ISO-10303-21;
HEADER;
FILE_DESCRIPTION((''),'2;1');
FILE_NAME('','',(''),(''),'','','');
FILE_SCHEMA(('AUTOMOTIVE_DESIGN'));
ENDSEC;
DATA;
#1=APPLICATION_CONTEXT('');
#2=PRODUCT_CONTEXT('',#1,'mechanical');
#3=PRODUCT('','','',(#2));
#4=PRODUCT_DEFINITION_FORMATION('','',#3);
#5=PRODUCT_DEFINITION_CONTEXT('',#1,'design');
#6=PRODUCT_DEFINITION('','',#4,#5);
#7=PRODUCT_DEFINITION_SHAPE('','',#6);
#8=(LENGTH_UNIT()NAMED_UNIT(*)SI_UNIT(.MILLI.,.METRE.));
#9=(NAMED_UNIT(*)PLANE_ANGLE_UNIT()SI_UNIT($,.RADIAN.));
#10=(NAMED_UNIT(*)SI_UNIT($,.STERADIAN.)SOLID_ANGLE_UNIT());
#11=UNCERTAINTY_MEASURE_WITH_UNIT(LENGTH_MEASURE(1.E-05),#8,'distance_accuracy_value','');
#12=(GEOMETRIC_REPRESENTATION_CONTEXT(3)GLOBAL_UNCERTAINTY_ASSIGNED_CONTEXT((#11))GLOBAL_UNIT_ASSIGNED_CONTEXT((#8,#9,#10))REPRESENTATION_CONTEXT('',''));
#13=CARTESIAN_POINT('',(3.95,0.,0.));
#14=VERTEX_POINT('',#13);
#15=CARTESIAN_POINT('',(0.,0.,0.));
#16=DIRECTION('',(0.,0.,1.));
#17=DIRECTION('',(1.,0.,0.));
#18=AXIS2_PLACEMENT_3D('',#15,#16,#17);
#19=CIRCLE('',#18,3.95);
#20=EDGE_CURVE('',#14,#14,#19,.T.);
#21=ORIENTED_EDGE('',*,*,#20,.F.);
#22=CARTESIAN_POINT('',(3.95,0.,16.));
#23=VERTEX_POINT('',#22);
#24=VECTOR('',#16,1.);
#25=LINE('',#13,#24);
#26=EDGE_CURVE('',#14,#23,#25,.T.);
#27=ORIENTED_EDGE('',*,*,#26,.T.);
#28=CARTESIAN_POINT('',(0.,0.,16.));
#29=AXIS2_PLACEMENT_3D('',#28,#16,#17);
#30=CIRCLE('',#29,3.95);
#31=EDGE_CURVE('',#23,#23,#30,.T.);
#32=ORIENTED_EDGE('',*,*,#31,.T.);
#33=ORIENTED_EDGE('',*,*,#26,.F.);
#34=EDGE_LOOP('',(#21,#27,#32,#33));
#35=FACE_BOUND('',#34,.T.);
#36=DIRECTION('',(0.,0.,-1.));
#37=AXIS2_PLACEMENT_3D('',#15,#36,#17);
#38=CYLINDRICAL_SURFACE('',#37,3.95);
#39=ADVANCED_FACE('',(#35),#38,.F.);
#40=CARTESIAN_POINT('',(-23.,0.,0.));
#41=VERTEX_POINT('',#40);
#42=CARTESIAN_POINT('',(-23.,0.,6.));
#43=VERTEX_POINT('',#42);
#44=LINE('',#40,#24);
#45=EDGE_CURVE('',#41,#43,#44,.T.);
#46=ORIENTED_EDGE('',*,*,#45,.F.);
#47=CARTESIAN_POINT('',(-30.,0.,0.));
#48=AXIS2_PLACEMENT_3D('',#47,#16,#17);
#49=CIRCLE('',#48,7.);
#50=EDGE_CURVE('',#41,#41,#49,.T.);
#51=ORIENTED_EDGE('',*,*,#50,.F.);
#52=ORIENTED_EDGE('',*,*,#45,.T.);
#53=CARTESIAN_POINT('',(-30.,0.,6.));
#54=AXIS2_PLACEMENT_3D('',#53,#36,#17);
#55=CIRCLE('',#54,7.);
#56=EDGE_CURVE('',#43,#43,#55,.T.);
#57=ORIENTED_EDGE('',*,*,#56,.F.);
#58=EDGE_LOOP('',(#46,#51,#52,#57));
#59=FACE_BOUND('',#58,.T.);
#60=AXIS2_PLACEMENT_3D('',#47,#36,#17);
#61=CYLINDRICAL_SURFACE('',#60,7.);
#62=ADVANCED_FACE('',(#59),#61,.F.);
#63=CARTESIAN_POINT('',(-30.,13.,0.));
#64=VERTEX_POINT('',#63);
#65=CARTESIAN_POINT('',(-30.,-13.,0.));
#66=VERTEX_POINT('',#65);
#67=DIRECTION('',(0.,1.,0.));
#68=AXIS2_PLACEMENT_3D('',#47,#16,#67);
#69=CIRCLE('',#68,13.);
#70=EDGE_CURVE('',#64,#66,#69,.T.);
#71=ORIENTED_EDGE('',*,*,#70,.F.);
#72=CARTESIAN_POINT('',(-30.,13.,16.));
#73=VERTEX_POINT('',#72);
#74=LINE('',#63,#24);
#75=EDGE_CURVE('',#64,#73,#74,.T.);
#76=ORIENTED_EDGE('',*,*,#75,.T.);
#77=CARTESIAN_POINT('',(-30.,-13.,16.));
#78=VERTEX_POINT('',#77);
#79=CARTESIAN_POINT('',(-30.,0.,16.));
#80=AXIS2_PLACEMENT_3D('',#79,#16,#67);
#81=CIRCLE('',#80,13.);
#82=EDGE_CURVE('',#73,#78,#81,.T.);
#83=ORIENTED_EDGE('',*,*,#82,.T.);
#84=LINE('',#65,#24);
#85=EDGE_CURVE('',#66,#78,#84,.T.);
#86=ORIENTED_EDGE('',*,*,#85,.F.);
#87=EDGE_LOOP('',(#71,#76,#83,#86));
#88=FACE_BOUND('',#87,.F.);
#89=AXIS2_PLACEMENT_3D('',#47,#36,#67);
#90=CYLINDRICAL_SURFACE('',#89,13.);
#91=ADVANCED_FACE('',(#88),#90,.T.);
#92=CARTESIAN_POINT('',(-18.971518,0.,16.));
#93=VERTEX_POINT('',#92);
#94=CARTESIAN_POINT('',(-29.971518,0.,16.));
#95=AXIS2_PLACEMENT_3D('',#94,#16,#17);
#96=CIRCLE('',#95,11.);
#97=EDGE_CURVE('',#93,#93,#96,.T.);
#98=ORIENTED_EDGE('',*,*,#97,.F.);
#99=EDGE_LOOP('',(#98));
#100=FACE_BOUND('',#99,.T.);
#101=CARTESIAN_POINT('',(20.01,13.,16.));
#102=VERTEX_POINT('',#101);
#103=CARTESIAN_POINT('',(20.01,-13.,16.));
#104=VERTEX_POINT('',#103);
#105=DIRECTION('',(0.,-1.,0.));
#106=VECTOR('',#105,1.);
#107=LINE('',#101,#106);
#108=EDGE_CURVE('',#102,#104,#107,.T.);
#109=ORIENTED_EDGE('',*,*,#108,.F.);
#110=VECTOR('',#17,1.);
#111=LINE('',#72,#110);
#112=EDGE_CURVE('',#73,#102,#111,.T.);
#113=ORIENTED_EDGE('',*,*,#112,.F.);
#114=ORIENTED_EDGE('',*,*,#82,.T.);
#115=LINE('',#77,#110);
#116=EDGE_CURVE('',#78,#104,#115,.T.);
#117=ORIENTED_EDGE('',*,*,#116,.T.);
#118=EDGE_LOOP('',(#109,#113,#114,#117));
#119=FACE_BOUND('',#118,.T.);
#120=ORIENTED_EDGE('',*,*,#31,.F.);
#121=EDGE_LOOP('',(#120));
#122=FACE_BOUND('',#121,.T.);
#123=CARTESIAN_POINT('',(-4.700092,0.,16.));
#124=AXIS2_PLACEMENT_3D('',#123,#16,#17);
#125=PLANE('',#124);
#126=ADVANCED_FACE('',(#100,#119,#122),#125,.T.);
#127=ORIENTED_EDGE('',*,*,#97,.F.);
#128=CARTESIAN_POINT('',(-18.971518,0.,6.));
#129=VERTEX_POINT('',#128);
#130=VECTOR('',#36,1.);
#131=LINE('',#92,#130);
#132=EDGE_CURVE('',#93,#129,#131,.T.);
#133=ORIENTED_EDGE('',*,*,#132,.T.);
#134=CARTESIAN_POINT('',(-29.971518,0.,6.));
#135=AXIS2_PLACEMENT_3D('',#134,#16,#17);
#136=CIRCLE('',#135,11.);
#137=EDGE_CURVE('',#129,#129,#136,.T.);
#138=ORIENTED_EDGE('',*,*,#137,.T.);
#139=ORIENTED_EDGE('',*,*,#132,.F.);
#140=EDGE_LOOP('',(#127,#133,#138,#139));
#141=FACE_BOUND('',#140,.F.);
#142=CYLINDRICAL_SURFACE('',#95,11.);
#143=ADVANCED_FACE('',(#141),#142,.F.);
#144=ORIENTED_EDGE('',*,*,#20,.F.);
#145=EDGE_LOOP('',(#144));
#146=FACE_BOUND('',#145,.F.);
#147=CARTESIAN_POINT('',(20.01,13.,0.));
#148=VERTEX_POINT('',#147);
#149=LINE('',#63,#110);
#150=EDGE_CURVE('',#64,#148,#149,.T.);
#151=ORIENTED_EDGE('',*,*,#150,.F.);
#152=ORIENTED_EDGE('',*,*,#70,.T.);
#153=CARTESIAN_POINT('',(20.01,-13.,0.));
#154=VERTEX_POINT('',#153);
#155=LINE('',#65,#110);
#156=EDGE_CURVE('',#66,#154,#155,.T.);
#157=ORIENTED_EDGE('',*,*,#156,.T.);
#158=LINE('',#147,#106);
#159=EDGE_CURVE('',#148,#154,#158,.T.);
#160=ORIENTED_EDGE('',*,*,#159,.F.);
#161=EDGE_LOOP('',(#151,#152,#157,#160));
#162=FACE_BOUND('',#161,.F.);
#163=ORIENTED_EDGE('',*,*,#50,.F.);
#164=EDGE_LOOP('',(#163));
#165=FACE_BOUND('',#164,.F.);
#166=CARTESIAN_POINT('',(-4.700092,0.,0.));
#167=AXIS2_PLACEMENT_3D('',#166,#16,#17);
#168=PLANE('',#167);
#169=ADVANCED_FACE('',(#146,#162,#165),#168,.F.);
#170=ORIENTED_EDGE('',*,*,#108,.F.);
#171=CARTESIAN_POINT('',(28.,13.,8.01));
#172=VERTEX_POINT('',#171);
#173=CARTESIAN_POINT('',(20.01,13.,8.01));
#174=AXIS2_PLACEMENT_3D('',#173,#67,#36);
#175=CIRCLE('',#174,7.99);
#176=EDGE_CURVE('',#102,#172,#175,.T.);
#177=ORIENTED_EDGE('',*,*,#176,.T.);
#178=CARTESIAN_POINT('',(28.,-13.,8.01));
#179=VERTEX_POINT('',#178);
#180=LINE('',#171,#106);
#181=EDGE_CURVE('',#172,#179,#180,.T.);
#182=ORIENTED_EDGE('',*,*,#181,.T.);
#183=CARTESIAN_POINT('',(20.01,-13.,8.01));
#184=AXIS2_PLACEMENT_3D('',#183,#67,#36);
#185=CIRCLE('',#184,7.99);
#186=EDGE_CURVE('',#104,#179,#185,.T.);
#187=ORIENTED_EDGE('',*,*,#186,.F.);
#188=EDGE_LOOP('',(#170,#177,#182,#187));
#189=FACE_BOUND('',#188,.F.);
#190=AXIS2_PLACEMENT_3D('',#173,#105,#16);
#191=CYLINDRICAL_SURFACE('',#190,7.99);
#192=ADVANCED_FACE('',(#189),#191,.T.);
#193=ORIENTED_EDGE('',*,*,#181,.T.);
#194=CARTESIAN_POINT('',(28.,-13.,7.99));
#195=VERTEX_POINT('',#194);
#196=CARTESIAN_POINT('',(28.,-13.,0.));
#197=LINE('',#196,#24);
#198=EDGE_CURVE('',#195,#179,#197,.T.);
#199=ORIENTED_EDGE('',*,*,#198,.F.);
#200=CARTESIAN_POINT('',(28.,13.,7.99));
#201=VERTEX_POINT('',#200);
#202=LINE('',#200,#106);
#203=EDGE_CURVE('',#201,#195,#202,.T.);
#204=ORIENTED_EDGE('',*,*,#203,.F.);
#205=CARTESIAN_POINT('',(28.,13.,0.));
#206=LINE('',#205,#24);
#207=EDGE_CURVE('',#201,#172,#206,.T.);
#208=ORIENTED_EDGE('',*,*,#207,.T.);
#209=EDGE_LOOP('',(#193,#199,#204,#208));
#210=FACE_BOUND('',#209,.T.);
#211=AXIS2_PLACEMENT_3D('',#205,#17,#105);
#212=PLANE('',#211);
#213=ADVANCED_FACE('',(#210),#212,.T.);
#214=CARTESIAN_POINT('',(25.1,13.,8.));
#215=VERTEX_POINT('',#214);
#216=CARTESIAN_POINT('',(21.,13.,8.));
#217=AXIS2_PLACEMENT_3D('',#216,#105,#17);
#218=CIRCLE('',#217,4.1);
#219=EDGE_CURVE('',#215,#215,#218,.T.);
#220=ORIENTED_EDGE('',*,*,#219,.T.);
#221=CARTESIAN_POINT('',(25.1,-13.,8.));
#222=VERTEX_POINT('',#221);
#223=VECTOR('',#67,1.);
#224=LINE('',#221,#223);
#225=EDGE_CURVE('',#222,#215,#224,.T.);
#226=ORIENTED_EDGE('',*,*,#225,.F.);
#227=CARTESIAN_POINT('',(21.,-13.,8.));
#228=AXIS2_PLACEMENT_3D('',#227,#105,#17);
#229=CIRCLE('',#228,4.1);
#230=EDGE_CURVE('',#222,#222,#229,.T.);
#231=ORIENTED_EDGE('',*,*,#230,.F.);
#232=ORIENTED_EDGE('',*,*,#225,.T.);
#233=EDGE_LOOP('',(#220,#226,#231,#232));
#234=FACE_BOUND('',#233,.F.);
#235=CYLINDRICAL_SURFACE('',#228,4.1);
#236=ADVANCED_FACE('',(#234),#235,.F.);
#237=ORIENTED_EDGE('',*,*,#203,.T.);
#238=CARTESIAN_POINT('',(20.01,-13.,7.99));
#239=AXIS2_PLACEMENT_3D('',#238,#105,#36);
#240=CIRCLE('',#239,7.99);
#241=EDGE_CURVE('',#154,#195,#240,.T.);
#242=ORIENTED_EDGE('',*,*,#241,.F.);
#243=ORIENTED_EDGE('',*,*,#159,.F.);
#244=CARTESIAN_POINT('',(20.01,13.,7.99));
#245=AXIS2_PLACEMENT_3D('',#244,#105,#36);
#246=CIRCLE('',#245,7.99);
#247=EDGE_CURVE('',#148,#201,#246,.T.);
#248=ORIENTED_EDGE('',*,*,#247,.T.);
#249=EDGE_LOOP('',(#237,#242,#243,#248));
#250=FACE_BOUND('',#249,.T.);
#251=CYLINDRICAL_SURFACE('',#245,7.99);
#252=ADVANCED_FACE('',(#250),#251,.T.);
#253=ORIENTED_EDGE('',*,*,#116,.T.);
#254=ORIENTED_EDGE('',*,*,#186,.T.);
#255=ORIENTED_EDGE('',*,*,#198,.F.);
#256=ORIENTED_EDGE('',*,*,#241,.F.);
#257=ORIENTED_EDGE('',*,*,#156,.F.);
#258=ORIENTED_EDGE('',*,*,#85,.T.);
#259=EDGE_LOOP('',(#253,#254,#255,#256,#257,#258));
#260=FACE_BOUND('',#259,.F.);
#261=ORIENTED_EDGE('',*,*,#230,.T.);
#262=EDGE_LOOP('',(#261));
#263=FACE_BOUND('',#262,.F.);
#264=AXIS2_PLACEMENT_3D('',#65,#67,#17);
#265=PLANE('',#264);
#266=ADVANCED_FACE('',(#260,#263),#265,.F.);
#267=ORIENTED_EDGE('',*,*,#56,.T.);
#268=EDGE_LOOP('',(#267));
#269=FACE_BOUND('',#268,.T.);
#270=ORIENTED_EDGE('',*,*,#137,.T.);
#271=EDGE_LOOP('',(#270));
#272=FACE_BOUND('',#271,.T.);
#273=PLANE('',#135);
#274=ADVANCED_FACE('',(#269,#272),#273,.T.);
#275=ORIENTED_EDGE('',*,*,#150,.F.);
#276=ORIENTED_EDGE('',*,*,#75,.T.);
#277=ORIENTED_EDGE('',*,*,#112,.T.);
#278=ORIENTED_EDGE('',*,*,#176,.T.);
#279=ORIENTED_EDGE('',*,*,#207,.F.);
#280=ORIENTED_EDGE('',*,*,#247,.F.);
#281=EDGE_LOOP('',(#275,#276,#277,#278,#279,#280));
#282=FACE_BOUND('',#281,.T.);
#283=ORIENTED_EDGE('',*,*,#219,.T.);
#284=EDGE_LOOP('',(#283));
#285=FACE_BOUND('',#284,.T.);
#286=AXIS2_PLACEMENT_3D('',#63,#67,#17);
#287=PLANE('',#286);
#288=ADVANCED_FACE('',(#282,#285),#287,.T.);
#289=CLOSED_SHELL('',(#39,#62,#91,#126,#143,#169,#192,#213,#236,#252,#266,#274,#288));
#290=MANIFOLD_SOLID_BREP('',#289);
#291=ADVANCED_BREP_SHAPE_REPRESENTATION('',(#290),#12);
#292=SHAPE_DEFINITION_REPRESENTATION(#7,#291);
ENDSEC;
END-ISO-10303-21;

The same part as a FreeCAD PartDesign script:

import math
import FreeCAD as App
import Part
import Sketcher
from FreeCAD import Vector


def edges_at(feature, points):
    """Names of the edges that pass closest to the given points."""
    edges = feature.Shape.Edges
    near = lambda p: min(range(len(edges)), key=lambda i: edges[i].distToShape(Part.Vertex(*p))[0])
    return sorted({f"Edge{near(p) + 1}" for p in points})

doc = App.newDocument("Part")
params = doc.addObject("Spreadsheet::Sheet", "Params")
for row, (alias, value) in enumerate([
    ("sketch1_diameter", "22 mm"),
    ("pad1_length", "10 mm"),
    ("sketch2_diameter", "8.2 mm"),
    ("pad2_length", "26 mm"),
    ("sketch3_diameter", "14 mm"),
    ("sketch3_radius", "13 mm"),
    ("sketch3_diameter2", "7.9 mm"),
    ("sketch3_width", "58 mm"),
    ("pad3_length", "16 mm"),
    ("fillet_radius", "7.99 mm"),
], start=1):
    params.set(f"A{row}", alias)
    params.set(f"B{row}", "=" + value)
    params.setAlias(f"B{row}", alias)

body = doc.addObject("PartDesign::Body", "Body")

# Sketch on XY plane
sketch1 = doc.addObject("Sketcher::SketchObject", "Sketch")
body.addObject(sketch1)
sketch1.AttachmentSupport = (doc.XY_Plane, [""])
sketch1.MapMode = "FlatFace"
sketch1.AttachmentOffset = App.Placement(Vector(0, 0, 16), App.Rotation())
sketch1.addGeometry(Part.Circle(Vector(-29.971518, 0, 0), Vector(0, 0, 1), 11), False)
sketch1.addConstraint([
    Sketcher.Constraint("PointOnObject", 0, 3, -1),
    Sketcher.Constraint("Diameter", 0, 22.0),
    Sketcher.Constraint("DistanceX", 0, 3, -1, 1, 29.971518),
])
sketch1.setExpression("Constraints[1]", "Params.sketch1_diameter")
pad1 = doc.addObject("PartDesign::Pad", "Pad")
body.addObject(pad1)
pad1.Profile = sketch1
pad1.setExpression("Length", "Params.pad1_length")
pad1.Reversed = True
body2 = doc.addObject("PartDesign::Body", "Body001")
body2.AllowCompound = True

# Sketch on XZ plane
sketch2 = doc.addObject("Sketcher::SketchObject", "Sketch001")
body2.addObject(sketch2)
sketch2.AttachmentSupport = (doc.getObject("XZ_Plane001"), [""])
sketch2.MapMode = "FlatFace"
sketch2.AttachmentOffset = App.Placement(Vector(0, 0, 13), App.Rotation())
sketch2.addGeometry(Part.Circle(Vector(21, 8, 0), Vector(0, 0, 1), 4.1), False)
sketch2.addConstraint([
    Sketcher.Constraint("Diameter", 0, 8.2),
    Sketcher.Constraint("DistanceX", -1, 1, 0, 3, 21.0),
    Sketcher.Constraint("DistanceY", -1, 1, 0, 3, 8.0),
])
sketch2.setExpression("Constraints[0]", "Params.sketch2_diameter")
pad2 = doc.addObject("PartDesign::Pad", "Pad001")
body2.addObject(pad2)
pad2.Profile = sketch2
pad2.setExpression("Length", "Params.pad2_length")
pad2.Reversed = True
doc.recompute()

boolean = doc.addObject("PartDesign::Boolean", "Boolean")
body2.addObject(boolean)
boolean.Type = "Fuse"
boolean.addObjects([body])
body3 = doc.addObject("PartDesign::Body", "Body002")

# Sketch on XY plane
sketch3 = doc.addObject("Sketcher::SketchObject", "Sketch002")
body3.addObject(sketch3)
sketch3.AttachmentSupport = (doc.getObject("XY_Plane002"), [""])
sketch3.MapMode = "FlatFace"
sketch3.addGeometry([
    Part.ArcOfCircle(Part.Circle(Vector(-30, 0, 0), Vector(0, 0, 1), 13), math.radians(90), math.radians(270)),  # 0
    Part.LineSegment(Vector(-30, -13, 0), Vector(28, -13, 0)),  # 1
    Part.LineSegment(Vector(28, -13, 0), Vector(28, 13, 0)),  # 2
    Part.LineSegment(Vector(28, 13, 0), Vector(-30, 13, 0)),  # 3
    Part.Circle(Vector(-30, 0, 0), Vector(0, 0, 1), 7),  # 4
    Part.Circle(Vector(0, 0, 0), Vector(0, 0, 1), 3.95),  # 5
], False)
sketch3.addConstraint([
    Sketcher.Constraint("Tangent", 0, 2, 1, 1),
    Sketcher.Constraint("Coincident", 1, 2, 2, 1),
    Sketcher.Constraint("Coincident", 2, 2, 3, 1),
    Sketcher.Constraint("Tangent", 3, 2, 0, 1),
    Sketcher.Constraint("Horizontal", 1),
    Sketcher.Constraint("Vertical", 2),
    Sketcher.Constraint("Horizontal", 3),
    Sketcher.Constraint("Coincident", 5, 3, -1, 1),
    Sketcher.Constraint("Coincident", 4, 3, 0, 3),
    Sketcher.Constraint("PointOnObject", 0, 3, -1),
    Sketcher.Constraint("Diameter", 4, 14.0),
    Sketcher.Constraint("Radius", 0, 13.0),
    Sketcher.Constraint("Diameter", 5, 7.9),
    Sketcher.Constraint("DistanceX", 1, 1, 1, 2, 58.0),
    Sketcher.Constraint("DistanceX", 0, 3, -1, 1, 30.0),
])
sketch3.setExpression("Constraints[10]", "Params.sketch3_diameter")
sketch3.setExpression("Constraints[11]", "Params.sketch3_radius")
sketch3.setExpression("Constraints[12]", "Params.sketch3_diameter2")
sketch3.setExpression("Constraints[13]", "Params.sketch3_width")
pad3 = doc.addObject("PartDesign::Pad", "Pad002")
body3.addObject(pad3)
pad3.Profile = sketch3
pad3.setExpression("Length", "Params.pad3_length")
doc.recompute()

boolean2 = doc.addObject("PartDesign::Boolean", "Boolean001")
body3.addObject(boolean2)
boolean2.Type = "Cut"
boolean2.addObjects([body2])
doc.recompute()

fillet = doc.addObject("PartDesign::Fillet", "Fillet")
body3.addObject(fillet)
fillet.Base = (boolean2, edges_at(boolean2, [(28, 0, 16), (28, 0, 0)]))
fillet.setExpression("Radius", "Params.fillet_radius")

doc.recompute()
